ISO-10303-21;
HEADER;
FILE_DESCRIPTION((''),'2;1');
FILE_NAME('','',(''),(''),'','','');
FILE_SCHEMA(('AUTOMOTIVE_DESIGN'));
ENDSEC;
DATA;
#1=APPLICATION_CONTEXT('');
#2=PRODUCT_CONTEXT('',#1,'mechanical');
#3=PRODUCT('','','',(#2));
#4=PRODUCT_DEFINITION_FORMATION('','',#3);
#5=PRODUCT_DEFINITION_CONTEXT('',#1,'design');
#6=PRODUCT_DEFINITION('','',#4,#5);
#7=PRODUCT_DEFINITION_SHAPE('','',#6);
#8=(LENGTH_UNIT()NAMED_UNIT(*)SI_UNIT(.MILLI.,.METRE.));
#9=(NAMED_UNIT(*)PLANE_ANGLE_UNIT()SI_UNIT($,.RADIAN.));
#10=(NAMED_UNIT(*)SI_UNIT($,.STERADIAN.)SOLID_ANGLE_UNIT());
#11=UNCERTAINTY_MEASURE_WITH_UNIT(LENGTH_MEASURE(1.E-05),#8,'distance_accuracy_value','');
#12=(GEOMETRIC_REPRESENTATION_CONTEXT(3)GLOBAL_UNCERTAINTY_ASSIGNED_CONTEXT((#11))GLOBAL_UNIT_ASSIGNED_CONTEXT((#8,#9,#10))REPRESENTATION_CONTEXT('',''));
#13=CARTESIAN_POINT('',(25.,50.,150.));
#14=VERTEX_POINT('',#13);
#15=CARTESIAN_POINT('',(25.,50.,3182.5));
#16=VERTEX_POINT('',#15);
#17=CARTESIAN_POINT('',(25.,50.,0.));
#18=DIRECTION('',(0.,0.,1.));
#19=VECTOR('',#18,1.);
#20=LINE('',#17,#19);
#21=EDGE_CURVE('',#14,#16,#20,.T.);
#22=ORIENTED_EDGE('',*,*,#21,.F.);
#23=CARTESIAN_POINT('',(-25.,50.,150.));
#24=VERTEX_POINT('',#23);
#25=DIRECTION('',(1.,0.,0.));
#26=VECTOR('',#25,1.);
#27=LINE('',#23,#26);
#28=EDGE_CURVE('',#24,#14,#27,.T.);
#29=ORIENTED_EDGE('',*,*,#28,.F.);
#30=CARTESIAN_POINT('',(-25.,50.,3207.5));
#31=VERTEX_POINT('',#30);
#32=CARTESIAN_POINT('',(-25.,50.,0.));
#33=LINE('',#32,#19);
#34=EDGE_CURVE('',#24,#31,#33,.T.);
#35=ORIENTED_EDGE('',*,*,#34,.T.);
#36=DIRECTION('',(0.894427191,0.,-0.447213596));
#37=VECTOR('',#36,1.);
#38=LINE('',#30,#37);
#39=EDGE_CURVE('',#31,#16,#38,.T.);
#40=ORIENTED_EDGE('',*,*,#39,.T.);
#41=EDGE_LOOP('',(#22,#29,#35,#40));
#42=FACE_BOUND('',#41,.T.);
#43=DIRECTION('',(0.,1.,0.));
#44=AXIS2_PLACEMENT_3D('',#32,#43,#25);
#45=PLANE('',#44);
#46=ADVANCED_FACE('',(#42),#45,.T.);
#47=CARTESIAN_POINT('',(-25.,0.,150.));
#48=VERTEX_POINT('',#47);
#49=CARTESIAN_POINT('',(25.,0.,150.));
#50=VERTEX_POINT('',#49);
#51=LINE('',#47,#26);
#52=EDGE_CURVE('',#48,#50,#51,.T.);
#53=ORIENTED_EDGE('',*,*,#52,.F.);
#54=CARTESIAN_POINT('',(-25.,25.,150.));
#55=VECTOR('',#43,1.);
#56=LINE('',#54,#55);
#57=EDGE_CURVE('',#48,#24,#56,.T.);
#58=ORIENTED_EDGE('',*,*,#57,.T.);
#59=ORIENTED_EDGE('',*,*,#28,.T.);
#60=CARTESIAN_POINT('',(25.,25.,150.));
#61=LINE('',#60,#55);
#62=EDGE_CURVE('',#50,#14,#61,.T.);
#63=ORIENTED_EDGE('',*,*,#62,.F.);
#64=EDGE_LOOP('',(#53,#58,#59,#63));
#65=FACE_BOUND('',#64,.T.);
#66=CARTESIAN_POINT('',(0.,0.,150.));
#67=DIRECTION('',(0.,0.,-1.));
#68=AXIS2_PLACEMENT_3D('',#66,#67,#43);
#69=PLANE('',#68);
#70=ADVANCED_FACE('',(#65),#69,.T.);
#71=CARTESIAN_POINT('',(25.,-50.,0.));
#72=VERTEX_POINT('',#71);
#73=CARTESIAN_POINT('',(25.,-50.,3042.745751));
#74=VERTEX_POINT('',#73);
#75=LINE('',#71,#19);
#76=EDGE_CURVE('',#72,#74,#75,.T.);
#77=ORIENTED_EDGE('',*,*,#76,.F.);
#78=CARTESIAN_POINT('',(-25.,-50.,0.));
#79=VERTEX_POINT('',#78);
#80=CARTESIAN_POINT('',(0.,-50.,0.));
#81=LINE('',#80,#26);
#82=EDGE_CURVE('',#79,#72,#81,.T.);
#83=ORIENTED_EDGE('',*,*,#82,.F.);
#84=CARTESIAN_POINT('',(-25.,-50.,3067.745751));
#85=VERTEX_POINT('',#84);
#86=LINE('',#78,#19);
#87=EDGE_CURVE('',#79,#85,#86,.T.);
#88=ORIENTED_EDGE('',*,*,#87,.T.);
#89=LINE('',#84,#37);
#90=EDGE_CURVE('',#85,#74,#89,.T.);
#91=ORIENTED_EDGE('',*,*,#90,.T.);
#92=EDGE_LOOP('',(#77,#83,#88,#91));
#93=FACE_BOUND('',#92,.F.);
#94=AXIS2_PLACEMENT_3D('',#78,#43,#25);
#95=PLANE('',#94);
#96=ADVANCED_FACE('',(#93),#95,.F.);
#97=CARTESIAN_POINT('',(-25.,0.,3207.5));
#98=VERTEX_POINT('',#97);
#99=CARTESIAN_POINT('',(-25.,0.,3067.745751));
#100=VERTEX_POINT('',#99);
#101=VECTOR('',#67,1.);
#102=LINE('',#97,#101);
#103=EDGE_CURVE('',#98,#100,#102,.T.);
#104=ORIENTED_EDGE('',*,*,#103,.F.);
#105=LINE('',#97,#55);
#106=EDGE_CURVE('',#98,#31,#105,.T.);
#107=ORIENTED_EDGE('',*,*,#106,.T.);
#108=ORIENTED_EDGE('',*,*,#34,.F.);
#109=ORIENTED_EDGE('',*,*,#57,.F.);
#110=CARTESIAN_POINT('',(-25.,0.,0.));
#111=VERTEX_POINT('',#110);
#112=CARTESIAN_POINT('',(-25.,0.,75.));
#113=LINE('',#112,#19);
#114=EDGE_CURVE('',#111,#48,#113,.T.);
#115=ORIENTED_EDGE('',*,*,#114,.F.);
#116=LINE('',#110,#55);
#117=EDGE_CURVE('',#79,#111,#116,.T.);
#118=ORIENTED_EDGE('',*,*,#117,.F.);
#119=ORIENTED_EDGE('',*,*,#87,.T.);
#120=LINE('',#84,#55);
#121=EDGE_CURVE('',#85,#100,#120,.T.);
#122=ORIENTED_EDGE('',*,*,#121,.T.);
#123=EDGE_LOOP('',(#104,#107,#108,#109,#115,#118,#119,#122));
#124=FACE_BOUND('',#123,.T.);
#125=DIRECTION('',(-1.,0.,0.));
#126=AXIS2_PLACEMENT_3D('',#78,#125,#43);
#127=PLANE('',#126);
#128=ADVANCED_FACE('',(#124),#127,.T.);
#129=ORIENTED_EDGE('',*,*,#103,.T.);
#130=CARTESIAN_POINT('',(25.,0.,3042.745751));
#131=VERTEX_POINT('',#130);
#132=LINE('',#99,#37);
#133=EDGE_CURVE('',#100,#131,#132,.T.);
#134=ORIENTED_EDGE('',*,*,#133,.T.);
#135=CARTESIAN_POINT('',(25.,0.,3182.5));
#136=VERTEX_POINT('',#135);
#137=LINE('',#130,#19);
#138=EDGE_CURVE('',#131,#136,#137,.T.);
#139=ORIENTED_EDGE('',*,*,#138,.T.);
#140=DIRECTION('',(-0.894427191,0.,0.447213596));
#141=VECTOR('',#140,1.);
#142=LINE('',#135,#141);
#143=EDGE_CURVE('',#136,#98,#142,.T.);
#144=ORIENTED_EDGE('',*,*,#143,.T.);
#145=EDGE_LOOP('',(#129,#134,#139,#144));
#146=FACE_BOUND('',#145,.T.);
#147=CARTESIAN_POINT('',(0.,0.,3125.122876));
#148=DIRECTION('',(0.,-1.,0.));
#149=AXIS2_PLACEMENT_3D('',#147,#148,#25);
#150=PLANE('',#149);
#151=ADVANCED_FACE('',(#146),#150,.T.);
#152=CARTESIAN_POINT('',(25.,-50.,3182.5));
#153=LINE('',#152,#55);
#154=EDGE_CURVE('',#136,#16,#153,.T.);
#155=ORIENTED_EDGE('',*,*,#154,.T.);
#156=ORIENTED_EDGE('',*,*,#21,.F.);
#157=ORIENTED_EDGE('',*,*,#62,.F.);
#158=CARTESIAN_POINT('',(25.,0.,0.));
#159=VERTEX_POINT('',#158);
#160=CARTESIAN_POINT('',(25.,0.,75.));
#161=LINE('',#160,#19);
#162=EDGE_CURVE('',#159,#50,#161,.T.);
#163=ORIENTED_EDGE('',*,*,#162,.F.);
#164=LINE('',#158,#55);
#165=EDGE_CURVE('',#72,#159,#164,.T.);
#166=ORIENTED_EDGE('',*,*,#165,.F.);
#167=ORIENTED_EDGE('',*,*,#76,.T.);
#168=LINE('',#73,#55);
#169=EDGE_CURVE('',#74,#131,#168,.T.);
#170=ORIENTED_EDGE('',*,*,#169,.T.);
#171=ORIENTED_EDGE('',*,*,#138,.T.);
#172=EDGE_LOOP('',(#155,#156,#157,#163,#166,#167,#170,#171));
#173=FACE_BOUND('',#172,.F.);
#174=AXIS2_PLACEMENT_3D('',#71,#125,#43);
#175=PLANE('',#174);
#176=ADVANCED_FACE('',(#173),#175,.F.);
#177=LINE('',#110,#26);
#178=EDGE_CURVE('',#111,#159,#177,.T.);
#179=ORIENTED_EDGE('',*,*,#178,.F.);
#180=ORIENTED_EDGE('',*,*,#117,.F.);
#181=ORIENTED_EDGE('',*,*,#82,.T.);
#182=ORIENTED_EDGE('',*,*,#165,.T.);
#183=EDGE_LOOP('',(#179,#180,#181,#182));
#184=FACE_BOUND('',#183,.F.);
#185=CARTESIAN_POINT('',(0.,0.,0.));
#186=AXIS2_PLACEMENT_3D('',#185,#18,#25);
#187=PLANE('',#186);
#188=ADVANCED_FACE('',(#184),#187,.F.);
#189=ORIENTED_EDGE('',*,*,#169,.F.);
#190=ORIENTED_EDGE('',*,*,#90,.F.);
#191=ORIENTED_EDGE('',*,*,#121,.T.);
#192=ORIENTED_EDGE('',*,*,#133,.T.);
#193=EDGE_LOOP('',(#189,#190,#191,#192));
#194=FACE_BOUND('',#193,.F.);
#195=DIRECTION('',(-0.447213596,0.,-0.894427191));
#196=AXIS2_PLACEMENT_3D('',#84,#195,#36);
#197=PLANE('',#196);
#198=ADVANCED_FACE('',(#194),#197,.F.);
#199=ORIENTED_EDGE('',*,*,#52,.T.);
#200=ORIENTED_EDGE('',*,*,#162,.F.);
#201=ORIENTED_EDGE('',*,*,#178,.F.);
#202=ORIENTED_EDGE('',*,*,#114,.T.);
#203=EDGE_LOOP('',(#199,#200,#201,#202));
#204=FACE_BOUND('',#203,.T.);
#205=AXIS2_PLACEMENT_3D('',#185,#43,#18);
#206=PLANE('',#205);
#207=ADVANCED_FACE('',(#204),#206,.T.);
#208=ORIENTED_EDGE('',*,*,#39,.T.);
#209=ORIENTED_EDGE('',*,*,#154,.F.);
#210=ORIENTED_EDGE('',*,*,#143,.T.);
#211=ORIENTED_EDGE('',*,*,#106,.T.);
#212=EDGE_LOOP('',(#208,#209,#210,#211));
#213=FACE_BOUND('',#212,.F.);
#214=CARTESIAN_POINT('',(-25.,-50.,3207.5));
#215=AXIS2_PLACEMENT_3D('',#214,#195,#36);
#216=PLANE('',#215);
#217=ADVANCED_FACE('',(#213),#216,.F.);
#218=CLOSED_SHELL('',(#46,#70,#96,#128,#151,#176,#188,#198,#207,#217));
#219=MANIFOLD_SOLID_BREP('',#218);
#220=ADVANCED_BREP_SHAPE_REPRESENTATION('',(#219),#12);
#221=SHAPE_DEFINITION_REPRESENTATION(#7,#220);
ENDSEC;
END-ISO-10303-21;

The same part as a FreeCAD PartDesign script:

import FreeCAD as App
import Part
import Sketcher

V = App.Vector
Q = App.Units.Quantity

doc = App.newDocument("Part")
body = doc.addObject("PartDesign::Body", "Body")

# Sketch on XY plane
sketch1 = body.newObject("Sketcher::SketchObject", "Sketch")
sketch1.AttachmentSupport = (doc.getObject("XY_Plane"), [""])
sketch1.MapMode = "FlatFace"
sketch1.addGeometry([
    Part.LineSegment(V(-25, 50, 0), V(-25, -50, 0)),
    Part.LineSegment(V(-25, -50, 0), V(25, -50, 0)),
    Part.LineSegment(V(25, -50, 0), V(25, 50, 0)),
    Part.LineSegment(V(25, 50, 0), V(-25, 50, 0)),
], False)
sketch1.addConstraint([
    Sketcher.Constraint("Coincident", 0, 2, 1, 1),
    Sketcher.Constraint("Coincident", 1, 2, 2, 1),
    Sketcher.Constraint("Coincident", 2, 2, 3, 1),
    Sketcher.Constraint("Coincident", 3, 2, 0, 1),
    Sketcher.Constraint("Vertical", 0),
    Sketcher.Constraint("Horizontal", 1),
    Sketcher.Constraint("Vertical", 2),
    Sketcher.Constraint("Horizontal", 3),
    Sketcher.Constraint("Symmetric", 0, 2, 2, 2, -1, 1),
    Sketcher.Constraint("DistanceX", 1, 1, 1, 2, Q("50 mm")),
    Sketcher.Constraint("DistanceY", 0, 2, 0, 1, Q("100 mm")),
])
pad1 = body.newObject("PartDesign::Pad", "Pad")
pad1.Profile = sketch1
pad1.Length = 3207.5

# Sketch on YZ plane
sketch2 = body.newObject("Sketcher::SketchObject", "Sketch001")
sketch2.AttachmentSupport = (doc.getObject("YZ_Plane"), [""])
sketch2.MapMode = "FlatFace"
sketch2.addGeometry([
    Part.LineSegment(V(0, 150, 0), V(0, 0, 0)),
    Part.LineSegment(V(0, 0, 0), V(50, 0, 0)),
    Part.LineSegment(V(50, 0, 0), V(50, 150, 0)),
    Part.LineSegment(V(50, 150, 0), V(0, 150, 0)),
], False)
sketch2.addConstraint([
    Sketcher.Constraint("Coincident", 0, 2, 1, 1),
    Sketcher.Constraint("Coincident", 1, 2, 2, 1),
    Sketcher.Constraint("Coincident", 2, 2, 3, 1),
    Sketcher.Constraint("Coincident", 3, 2, 0, 1),
    Sketcher.Constraint("Vertical", 0),
    Sketcher.Constraint("Horizontal", 1),
    Sketcher.Constraint("Vertical", 2),
    Sketcher.Constraint("Horizontal", 3),
    Sketcher.Constraint("Coincident", 0, 2, -1, 1),
    Sketcher.Constraint("DistanceX", 1, 1, 1, 2, Q("50 mm")),
    Sketcher.Constraint("DistanceY", 0, 2, 0, 1, Q("150 mm")),
])
pocket1 = body.newObject("PartDesign::Pocket", "Pocket")
pocket1.Profile = sketch2
pocket1.Type = "ThroughAll"
pocket1.Midplane = True

# Sketch on XZ plane
sketch3 = body.newObject("Sketcher::SketchObject", "Sketch002")
sketch3.AttachmentSupport = (doc.getObject("XZ_Plane"), [""])
sketch3.MapMode = "FlatFace"
sketch3.AttachmentOffset = App.Placement(V(0, 0, 50), App.Rotation())
sketch3.addGeometry([
    Part.LineSegment(V(25, 3207.5, 0), V(-25, 3207.5, 0)),
    Part.LineSegment(V(-25, 3207.5, 0), V(25, 3182.5, 0)),
    Part.LineSegment(V(25, 3182.5, 0), V(25, 3207.5, 0)),
], False)
sketch3.addConstraint([
    Sketcher.Constraint("Coincident", 0, 2, 1, 1),
    Sketcher.Constraint("Coincident", 1, 2, 2, 1),
    Sketcher.Constraint("Coincident", 2, 2, 0, 1),
    Sketcher.Constraint("Horizontal", 0),
    Sketcher.Constraint("Vertical", 2),
    Sketcher.Constraint("DistanceX", 0, 2, 0, 1, Q("50 mm")),
    Sketcher.Constraint("DistanceY", 2, 1, 2, 2, Q("25 mm")),
    Sketcher.Constraint("DistanceX", 0, 2, -1, 1, Q("25 mm")),
    Sketcher.Constraint("DistanceY", -1, 1, 0, 2, Q("3207.5 mm")),
])
pocket2 = body.newObject("PartDesign::Pocket", "Pocket001")
pocket2.Profile = sketch3
pocket2.Type = "ThroughAll"

# Sketch on XZ plane
sketch4 = body.newObject("Sketcher::SketchObject", "Sketch003")
sketch4.AttachmentSupport = (doc.getObject("XZ_Plane"), [""])
sketch4.MapMode = "FlatFace"
sketch4.AttachmentOffset = App.Placement(V(0, 0, 50), App.Rotation())
sketch4.addGeometry([
    Part.LineSegment(V(25, 3182.5, 0), V(-25, 3207.5, 0)),
    Part.LineSegment(V(-25, 3207.5, 0), V(-25, 3067.745751, 0)),
    Part.LineSegment(V(-25, 3067.745751, 0), V(25, 3042.745751, 0)),
    Part.LineSegment(V(25, 3042.745751, 0), V(25, 3182.5, 0)),
], False)
sketch4.addConstraint([
    Sketcher.Constraint("Coincident", 0, 2, 1, 1),
    Sketcher.Constraint("Coincident", 1, 2, 2, 1),
    Sketcher.Constraint("Coincident", 2, 2, 3, 1),
    Sketcher.Constraint("Coincident", 3, 2, 0, 1),
    Sketcher.Constraint("Vertical", 1),
    Sketcher.Constraint("Vertical", 3),
    Sketcher.Constraint("Parallel", 0, 2),
    Sketcher.Constraint("DistanceX", 0, 2, -1, 1, Q("25 mm")),
    Sketcher.Constraint("DistanceX", -1, 1, 2, 2, Q("25 mm")),
    Sketcher.Constraint("DistanceY", 2, 2, 1, 2, Q("25 mm")),
    Sketcher.Constraint("DistanceY", -1, 1, 0, 2, Q("3207.5 mm")),
    Sketcher.Constraint("DistanceY", 1, 2, 1, 1, Q("139.754249 mm")),
])
pocket3 = body.newObject("PartDesign::Pocket", "Pocket002")
pocket3.Profile = sketch4
pocket3.Length = 50

doc.recompute()
